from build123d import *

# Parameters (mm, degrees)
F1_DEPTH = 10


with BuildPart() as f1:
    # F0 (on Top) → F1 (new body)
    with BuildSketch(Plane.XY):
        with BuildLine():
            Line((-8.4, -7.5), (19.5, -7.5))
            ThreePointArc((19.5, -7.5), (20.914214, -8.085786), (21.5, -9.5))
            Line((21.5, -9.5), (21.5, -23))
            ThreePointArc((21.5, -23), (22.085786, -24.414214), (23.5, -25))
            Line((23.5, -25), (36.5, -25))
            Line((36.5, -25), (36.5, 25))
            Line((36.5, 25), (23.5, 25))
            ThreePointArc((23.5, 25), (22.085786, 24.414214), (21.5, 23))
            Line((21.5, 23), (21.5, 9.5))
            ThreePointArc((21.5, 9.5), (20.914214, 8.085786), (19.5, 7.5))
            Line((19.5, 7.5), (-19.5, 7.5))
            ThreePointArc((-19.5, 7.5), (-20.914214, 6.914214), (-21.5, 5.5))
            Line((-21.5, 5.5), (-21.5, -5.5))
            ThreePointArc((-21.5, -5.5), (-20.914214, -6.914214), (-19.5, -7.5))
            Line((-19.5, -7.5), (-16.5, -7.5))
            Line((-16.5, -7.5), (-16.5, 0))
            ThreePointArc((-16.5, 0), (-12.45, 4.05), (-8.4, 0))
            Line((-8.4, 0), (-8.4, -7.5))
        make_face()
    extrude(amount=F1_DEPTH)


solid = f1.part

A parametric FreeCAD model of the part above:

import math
import FreeCAD as App
import Part
import Sketcher
from FreeCAD import Vector

doc = App.newDocument("Part")
body = doc.addObject("PartDesign::Body", "Body")

# Sketch on XY plane
sketch1 = body.newObject("Sketcher::SketchObject", "Sketch")
sketch1.AttachmentSupport = (doc.getObject("XY_Plane"), [""])
sketch1.MapMode = "FlatFace"
sketch1.addGeometry([
    Part.LineSegment(Vector(-8.4, -7.5, 0), Vector(19.5, -7.5, 0)),  # 0
    Part.ArcOfCircle(Part.Circle(Vector(19.5, -9.5, 0), Vector(0, 0, 1), 2), math.radians(0), math.radians(90)),  # 1
    Part.LineSegment(Vector(21.5, -9.5, 0), Vector(21.5, -23, 0)),  # 2
    Part.ArcOfCircle(Part.Circle(Vector(23.5, -23, 0), Vector(0, 0, 1), 2), math.radians(180), math.radians(270)),  # 3
    Part.LineSegment(Vector(23.5, -25, 0), Vector(36.5, -25, 0)),  # 4
    Part.LineSegment(Vector(36.5, -25, 0), Vector(36.5, 25, 0)),  # 5
    Part.LineSegment(Vector(36.5, 25, 0), Vector(23.5, 25, 0)),  # 6
    Part.ArcOfCircle(Part.Circle(Vector(23.5, 23, 0), Vector(0, 0, 1), 2), math.radians(90), math.radians(180)),  # 7
    Part.LineSegment(Vector(21.5, 23, 0), Vector(21.5, 9.5, 0)),  # 8
    Part.ArcOfCircle(Part.Circle(Vector(19.5, 9.5, 0), Vector(0, 0, 1), 2), math.radians(-90), math.radians(0)),  # 9
    Part.LineSegment(Vector(19.5, 7.5, 0), Vector(-19.5, 7.5, 0)),  # 10
    Part.ArcOfCircle(Part.Circle(Vector(-19.5, 5.5, 0), Vector(0, 0, 1), 2), math.radians(90), math.radians(180)),  # 11
    Part.LineSegment(Vector(-21.5, 5.5, 0), Vector(-21.5, -5.5, 0)),  # 12
    Part.ArcOfCircle(Part.Circle(Vector(-19.5, -5.5, 0), Vector(0, 0, 1), 2), math.radians(180), math.radians(270)),  # 13
    Part.LineSegment(Vector(-19.5, -7.5, 0), Vector(-16.5, -7.5, 0)),  # 14
    Part.LineSegment(Vector(-16.5, -7.5, 0), Vector(-16.5, 0, 0)),  # 15
    Part.ArcOfCircle(Part.Circle(Vector(-12.4, 0, 0), Vector(0, 0, 1), 4), math.radians(0), math.radians(180)),  # 16
    Part.LineSegment(Vector(-8.4, 0, 0), Vector(-8.4, -7.5, 0)),  # 17
], False)
sketch1.addConstraint([
    Sketcher.Constraint("Tangent", 0, 2, 1, 2),
    Sketcher.Constraint("Tangent", 1, 1, 2, 1),
    Sketcher.Constraint("Tangent", 2, 2, 3, 1),
    Sketcher.Constraint("Tangent", 3, 2, 4, 1),
    Sketcher.Constraint("Coincident", 4, 2, 5, 1),
    Sketcher.Constraint("Coincident", 5, 2, 6, 1),
    Sketcher.Constraint("Tangent", 6, 2, 7, 1),
    Sketcher.Constraint("Tangent", 7, 2, 8, 1),
    Sketcher.Constraint("Tangent", 8, 2, 9, 2),
    Sketcher.Constraint("Tangent", 9, 1, 10, 1),
    Sketcher.Constraint("Tangent", 10, 2, 11, 1),
    Sketcher.Constraint("Tangent", 11, 2, 12, 1),
    Sketcher.Constraint("Tangent", 12, 2, 13, 1),
    Sketcher.Constraint("Tangent", 13, 2, 14, 1),
    Sketcher.Constraint("Coincident", 14, 2, 15, 1),
    Sketcher.Constraint("Tangent", 15, 2, 16, 2),
    Sketcher.Constraint("Tangent", 16, 1, 17, 1),
    Sketcher.Constraint("Coincident", 17, 2, 0, 1),
    Sketcher.Constraint("Horizontal", 0),
    Sketcher.Constraint("Vertical", 2),
    Sketcher.Constraint("Horizontal", 4),
    Sketcher.Constraint("Vertical", 5),
    Sketcher.Constraint("Horizontal", 6),
    Sketcher.Constraint("Vertical", 8),
    Sketcher.Constraint("Horizontal", 10),
    Sketcher.Constraint("Vertical", 12),
    Sketcher.Constraint("Horizontal", 14),
    Sketcher.Constraint("Vertical", 15),
    Sketcher.Constraint("Vertical", 17),
    Sketcher.Constraint("Equal", 1, 3),
    Sketcher.Constraint("Equal", 3, 7),
    Sketcher.Constraint("Equal", 7, 9),
    Sketcher.Constraint("Equal", 9, 11),
    Sketcher.Constraint("Equal", 11, 13),
    Sketcher.Constraint("Symmetric", 0, 2, 10, 2, -1, 1),
    Sketcher.Constraint("Symmetric", 9, 1, 13, 2, -1, 1),
    Sketcher.Constraint("PointOnObject", 16, 3, -1),
    Sketcher.Constraint("Equal", 2, 8),
    Sketcher.Constraint("Radius", 1, 1.999999),
    Sketcher.Constraint("DistanceX", 4, 1, 4, 2, 13.0),
    Sketcher.Constraint("DistanceX", 10, 2, 10, 1, 39.0),
    Sketcher.Constraint("DistanceX", 14, 1, 14, 2, 3.0),
    Sketcher.Constraint("DistanceY", 5, 1, 5, 2, 50.0),
    Sketcher.Constraint("DistanceY", 12, 2, 12, 1, 11.0),
    Sketcher.Constraint("Radius", 16, 4.05),
])
pad1 = body.newObject("PartDesign::Pad", "Pad")
pad1.Profile = sketch1
pad1.Length = 10

doc.recompute()
